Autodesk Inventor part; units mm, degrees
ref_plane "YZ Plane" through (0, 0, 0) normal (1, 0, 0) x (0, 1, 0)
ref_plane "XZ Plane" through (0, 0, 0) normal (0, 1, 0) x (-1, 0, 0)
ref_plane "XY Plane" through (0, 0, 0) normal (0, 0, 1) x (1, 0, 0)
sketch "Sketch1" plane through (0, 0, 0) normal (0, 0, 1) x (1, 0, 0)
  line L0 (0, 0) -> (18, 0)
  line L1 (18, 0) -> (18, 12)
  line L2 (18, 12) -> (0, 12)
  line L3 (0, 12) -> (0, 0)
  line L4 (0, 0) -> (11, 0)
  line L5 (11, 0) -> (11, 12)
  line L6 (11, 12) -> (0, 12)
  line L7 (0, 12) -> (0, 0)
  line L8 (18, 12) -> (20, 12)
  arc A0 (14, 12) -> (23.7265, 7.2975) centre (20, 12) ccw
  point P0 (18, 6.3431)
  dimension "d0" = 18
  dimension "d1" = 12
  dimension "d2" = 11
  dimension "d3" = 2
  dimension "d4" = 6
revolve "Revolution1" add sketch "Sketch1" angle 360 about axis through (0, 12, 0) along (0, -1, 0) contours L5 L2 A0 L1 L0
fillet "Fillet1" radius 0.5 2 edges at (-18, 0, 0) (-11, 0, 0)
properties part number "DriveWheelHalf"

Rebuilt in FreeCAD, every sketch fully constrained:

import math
import FreeCAD as App
import Part
import Sketcher

V = App.Vector
Q = App.Units.Quantity


def edges_at(feature, points):
    """Names of the edges that pass closest to the given points."""
    edges = feature.Shape.Edges
    near = lambda p: min(range(len(edges)), key=lambda i: edges[i].distToShape(Part.Vertex(*p))[0])
    return sorted({f"Edge{near(p) + 1}" for p in points})

doc = App.newDocument("Part")
body = doc.addObject("PartDesign::Body", "Body")

# Sketch on XY plane
sketch1 = doc.addObject("Sketcher::SketchObject", "Sketch")
body.addObject(sketch1)
sketch1.AttachmentSupport = (doc.XY_Plane, [""])
sketch1.MapMode = "FlatFace"
sketch1.addGeometry([
    Part.LineSegment(V(11, 12, 0), V(11, 0, 0)),  # 0
    Part.LineSegment(V(11, 0, 0), V(18, 0, 0)),  # 1
    Part.LineSegment(V(18, 0, 0), V(18, 6.3, 0)),  # 2
    Part.ArcOfCircle(Part.Circle(V(20, 12, 0), V(0, 0, 1), 6), math.radians(180), math.radians(251)),  # 3
    Part.LineSegment(V(14, 12, 0), V(11, 12, 0)),  # 4
], False)
sketch1.addConstraint([
    Sketcher.Constraint("Coincident", 0, 2, 1, 1),
    Sketcher.Constraint("Coincident", 1, 2, 2, 1),
    Sketcher.Constraint("Coincident", 2, 2, 3, 2),
    Sketcher.Constraint("Coincident", 3, 1, 4, 1),
    Sketcher.Constraint("Coincident", 4, 2, 0, 1),
    Sketcher.Constraint("Vertical", 0),
    Sketcher.Constraint("Horizontal", 1),
    Sketcher.Constraint("Vertical", 2),
    Sketcher.Constraint("Horizontal", 4),
    Sketcher.Constraint("PointOnObject", 0, 2, -1),
    Sketcher.Constraint("Radius", 3, Q("6 mm")),
    Sketcher.Constraint("DistanceY", 0, 2, 0, 1, Q("12 mm")),
    Sketcher.Constraint("DistanceY", -1, 1, 3, 3, Q("12 mm")),
    Sketcher.Constraint("DistanceX", -1, 1, 0, 2, Q("11 mm")),
    Sketcher.Constraint("DistanceX", -1, 1, 1, 2, Q("18 mm")),
    Sketcher.Constraint("DistanceX", 1, 2, 3, 3, Q("2 mm")),
])
revolution = doc.addObject("PartDesign::Revolution", "Revolution")
body.addObject(revolution)
revolution.Profile = sketch1
revolution.ReferenceAxis = (sketch1, ["V_Axis"])
revolution.Angle = 360
doc.recompute()

fillet = doc.addObject("PartDesign::Fillet", "Fillet")
body.addObject(fillet)
fillet.Base = (revolution, edges_at(revolution, [(-18, 0, 0), (-11, 0, 0)]))
fillet.Radius = 0.5

doc.recompute()
